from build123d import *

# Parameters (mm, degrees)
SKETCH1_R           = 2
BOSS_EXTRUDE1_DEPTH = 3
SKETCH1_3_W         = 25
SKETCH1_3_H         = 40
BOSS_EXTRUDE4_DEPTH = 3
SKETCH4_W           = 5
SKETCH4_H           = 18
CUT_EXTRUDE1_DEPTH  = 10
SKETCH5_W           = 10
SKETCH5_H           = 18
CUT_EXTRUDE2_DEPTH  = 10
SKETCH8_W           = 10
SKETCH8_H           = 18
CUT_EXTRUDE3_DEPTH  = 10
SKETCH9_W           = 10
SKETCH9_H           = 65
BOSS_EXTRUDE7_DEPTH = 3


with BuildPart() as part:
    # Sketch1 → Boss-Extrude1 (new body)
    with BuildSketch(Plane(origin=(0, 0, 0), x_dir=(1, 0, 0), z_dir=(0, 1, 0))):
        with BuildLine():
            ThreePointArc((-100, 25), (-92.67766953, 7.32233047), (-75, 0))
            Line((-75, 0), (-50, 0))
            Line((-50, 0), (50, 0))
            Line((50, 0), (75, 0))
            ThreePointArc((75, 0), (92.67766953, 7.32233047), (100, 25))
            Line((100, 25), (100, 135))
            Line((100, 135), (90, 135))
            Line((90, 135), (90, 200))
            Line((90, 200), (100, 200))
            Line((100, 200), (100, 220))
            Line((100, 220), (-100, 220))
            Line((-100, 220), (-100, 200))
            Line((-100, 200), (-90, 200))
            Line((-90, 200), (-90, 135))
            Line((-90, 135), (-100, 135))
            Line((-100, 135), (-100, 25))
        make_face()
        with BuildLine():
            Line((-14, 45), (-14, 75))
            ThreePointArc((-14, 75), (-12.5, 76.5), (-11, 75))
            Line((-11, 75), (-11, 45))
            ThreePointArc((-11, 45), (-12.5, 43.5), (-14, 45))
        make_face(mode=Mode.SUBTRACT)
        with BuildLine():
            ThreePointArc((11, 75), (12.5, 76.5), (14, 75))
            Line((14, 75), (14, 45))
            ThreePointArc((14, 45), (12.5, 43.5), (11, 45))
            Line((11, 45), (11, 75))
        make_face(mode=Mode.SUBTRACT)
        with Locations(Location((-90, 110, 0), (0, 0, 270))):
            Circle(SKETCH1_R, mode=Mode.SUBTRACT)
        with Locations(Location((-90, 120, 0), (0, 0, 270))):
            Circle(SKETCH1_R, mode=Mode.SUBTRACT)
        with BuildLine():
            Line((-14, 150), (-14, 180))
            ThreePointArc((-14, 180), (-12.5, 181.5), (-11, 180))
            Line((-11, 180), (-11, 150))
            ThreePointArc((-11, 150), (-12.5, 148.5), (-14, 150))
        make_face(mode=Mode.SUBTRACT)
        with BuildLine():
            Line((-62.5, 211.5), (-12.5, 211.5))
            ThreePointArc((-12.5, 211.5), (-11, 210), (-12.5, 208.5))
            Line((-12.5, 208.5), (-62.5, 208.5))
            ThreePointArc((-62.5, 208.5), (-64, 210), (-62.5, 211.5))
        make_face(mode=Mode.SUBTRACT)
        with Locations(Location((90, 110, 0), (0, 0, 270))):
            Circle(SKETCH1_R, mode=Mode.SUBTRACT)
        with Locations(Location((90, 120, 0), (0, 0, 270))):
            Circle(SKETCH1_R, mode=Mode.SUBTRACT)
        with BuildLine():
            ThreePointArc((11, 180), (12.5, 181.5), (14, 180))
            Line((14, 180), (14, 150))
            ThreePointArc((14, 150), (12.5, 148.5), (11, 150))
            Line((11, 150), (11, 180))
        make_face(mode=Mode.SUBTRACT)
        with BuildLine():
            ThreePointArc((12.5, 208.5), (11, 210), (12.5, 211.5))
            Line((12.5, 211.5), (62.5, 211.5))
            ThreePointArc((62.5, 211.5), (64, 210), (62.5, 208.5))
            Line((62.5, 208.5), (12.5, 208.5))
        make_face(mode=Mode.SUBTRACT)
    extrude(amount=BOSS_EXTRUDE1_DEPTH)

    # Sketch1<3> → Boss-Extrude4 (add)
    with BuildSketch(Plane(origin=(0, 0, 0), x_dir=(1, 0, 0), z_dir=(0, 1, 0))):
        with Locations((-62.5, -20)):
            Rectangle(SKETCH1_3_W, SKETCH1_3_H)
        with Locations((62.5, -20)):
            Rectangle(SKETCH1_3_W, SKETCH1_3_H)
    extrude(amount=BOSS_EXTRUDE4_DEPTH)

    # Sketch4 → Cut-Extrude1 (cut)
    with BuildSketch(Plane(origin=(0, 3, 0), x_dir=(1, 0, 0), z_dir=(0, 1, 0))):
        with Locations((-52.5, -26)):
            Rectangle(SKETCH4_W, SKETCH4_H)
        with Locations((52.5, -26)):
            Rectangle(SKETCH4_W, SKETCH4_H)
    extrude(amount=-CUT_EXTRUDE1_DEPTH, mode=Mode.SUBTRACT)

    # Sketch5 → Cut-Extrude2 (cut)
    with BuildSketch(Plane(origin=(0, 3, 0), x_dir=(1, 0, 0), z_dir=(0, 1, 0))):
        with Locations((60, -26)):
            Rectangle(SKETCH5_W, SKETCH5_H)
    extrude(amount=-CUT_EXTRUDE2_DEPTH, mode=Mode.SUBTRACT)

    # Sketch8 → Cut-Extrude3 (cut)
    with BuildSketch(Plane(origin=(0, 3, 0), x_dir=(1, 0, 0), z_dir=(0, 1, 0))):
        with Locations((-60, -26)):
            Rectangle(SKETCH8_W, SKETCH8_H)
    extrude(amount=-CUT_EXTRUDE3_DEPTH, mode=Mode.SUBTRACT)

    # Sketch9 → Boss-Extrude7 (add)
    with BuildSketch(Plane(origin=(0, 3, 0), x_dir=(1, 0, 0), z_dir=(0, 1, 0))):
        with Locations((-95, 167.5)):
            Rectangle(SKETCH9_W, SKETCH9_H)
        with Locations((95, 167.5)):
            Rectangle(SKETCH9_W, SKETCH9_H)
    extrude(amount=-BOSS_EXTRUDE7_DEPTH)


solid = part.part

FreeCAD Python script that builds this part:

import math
import FreeCAD as App
import Part
import Sketcher

doc = App.newDocument("Part")
body = doc.addObject("PartDesign::Body", "Body")

sketch1 = body.newObject("Sketcher::SketchObject", "Sketch")
sketch1.AttachmentSupport = (doc.getObject("XZ_Plane"), [""])
sketch1.MapMode = "FlatFace"
sketch1.addGeometry(Part.ArcOfCircle(Part.Circle(App.Vector(-75, -25, 0), App.Vector(0, 0, 1), 25), math.radians(90), math.radians(180)), False)
sketch1.addGeometry(Part.LineSegment(App.Vector(-75, 0, 0), App.Vector(75, 0, 0)), False)
sketch1.addGeometry(Part.ArcOfCircle(Part.Circle(App.Vector(75, -25, 0), App.Vector(0, 0, 1), 25), math.radians(0), math.radians(90)), False)
sketch1.addGeometry(Part.LineSegment(App.Vector(100, -25, 0), App.Vector(100, -135, 0)), False)
sketch1.addGeometry(Part.LineSegment(App.Vector(100, -135, 0), App.Vector(90, -135, 0)), False)
sketch1.addGeometry(Part.LineSegment(App.Vector(90, -135, 0), App.Vector(90, -200, 0)), False)
sketch1.addGeometry(Part.LineSegment(App.Vector(90, -200, 0), App.Vector(100, -200, 0)), False)
sketch1.addGeometry(Part.LineSegment(App.Vector(100, -200, 0), App.Vector(100, -220, 0)), False)
sketch1.addGeometry(Part.LineSegment(App.Vector(100, -220, 0), App.Vector(-100, -220, 0)), False)
sketch1.addGeometry(Part.LineSegment(App.Vector(-100, -220, 0), App.Vector(-100, -200, 0)), False)
sketch1.addGeometry(Part.LineSegment(App.Vector(-100, -200, 0), App.Vector(-90, -200, 0)), False)
sketch1.addGeometry(Part.LineSegment(App.Vector(-90, -200, 0), App.Vector(-90, -135, 0)), False)
sketch1.addGeometry(Part.LineSegment(App.Vector(-90, -135, 0), App.Vector(-100, -135, 0)), False)
sketch1.addGeometry(Part.LineSegment(App.Vector(-100, -135, 0), App.Vector(-100, -25, 0)), False)
sketch1.addGeometry(Part.ArcOfCircle(Part.Circle(App.Vector(-12.5, -45, 0), App.Vector(0, 0, 1), 1.5), math.radians(0), math.radians(180)), False)
sketch1.addGeometry(Part.LineSegment(App.Vector(-14, -45, 0), App.Vector(-14, -75, 0)), False)
sketch1.addGeometry(Part.ArcOfCircle(Part.Circle(App.Vector(-12.5, -75, 0), App.Vector(0, 0, 1), 1.5), math.radians(180), math.radians(360)), False)
sketch1.addGeometry(Part.LineSegment(App.Vector(-11, -75, 0), App.Vector(-11, -45, 0)), False)
sketch1.addGeometry(Part.Circle(App.Vector(-90, -110, 0), App.Vector(0, 0, 1), 2), False)
sketch1.addGeometry(Part.Circle(App.Vector(-90, -120, 0), App.Vector(0, 0, 1), 2), False)
sketch1.addGeometry(Part.LineSegment(App.Vector(11, -45, 0), App.Vector(11, -75, 0)), False)
sketch1.addGeometry(Part.ArcOfCircle(Part.Circle(App.Vector(12.5, -75, 0), App.Vector(0, 0, 1), 1.5), math.radians(180), math.radians(360)), False)
sketch1.addGeometry(Part.LineSegment(App.Vector(14, -75, 0), App.Vector(14, -45, 0)), False)
sketch1.addGeometry(Part.ArcOfCircle(Part.Circle(App.Vector(12.5, -45, 0), App.Vector(0, 0, 1), 1.5), math.radians(0), math.radians(180)), False)
sketch1.addGeometry(Part.Circle(App.Vector(90, -110, 0), App.Vector(0, 0, 1), 2), False)
sketch1.addGeometry(Part.Circle(App.Vector(90, -120, 0), App.Vector(0, 0, 1), 2), False)
sketch1.addGeometry(Part.ArcOfCircle(Part.Circle(App.Vector(-12.5, -150, 0), App.Vector(0, 0, 1), 1.5), math.radians(0), math.radians(180)), False)
sketch1.addGeometry(Part.LineSegment(App.Vector(-14, -150, 0), App.Vector(-14, -180, 0)), False)
sketch1.addGeometry(Part.ArcOfCircle(Part.Circle(App.Vector(-12.5, -180, 0), App.Vector(0, 0, 1), 1.5), math.radians(180), math.radians(360)), False)
sketch1.addGeometry(Part.LineSegment(App.Vector(-11, -180, 0), App.Vector(-11, -150, 0)), False)
sketch1.addGeometry(Part.ArcOfCircle(Part.Circle(App.Vector(-62.5, -210, 0), App.Vector(0, 0, 1), 1.5), math.radians(90), math.radians(270)), False)
sketch1.addGeometry(Part.LineSegment(App.Vector(-62.5, -211.5, 0), App.Vector(-12.5, -211.5, 0)), False)
sketch1.addGeometry(Part.ArcOfCircle(Part.Circle(App.Vector(-12.5, -210, 0), App.Vector(0, 0, 1), 1.5), math.radians(-90), math.radians(90)), False)
sketch1.addGeometry(Part.LineSegment(App.Vector(-12.5, -208.5, 0), App.Vector(-62.5, -208.5, 0)), False)
sketch1.addGeometry(Part.LineSegment(App.Vector(11, -150, 0), App.Vector(11, -180, 0)), False)
sketch1.addGeometry(Part.ArcOfCircle(Part.Circle(App.Vector(12.5, -180, 0), App.Vector(0, 0, 1), 1.5), math.radians(180), math.radians(360)), False)
sketch1.addGeometry(Part.LineSegment(App.Vector(14, -180, 0), App.Vector(14, -150, 0)), False)
sketch1.addGeometry(Part.ArcOfCircle(Part.Circle(App.Vector(12.5, -150, 0), App.Vector(0, 0, 1), 1.5), math.radians(0), math.radians(180)), False)
sketch1.addGeometry(Part.LineSegment(App.Vector(62.5, -208.5, 0), App.Vector(12.5, -208.5, 0)), False)
sketch1.addGeometry(Part.ArcOfCircle(Part.Circle(App.Vector(12.5, -210, 0), App.Vector(0, 0, 1), 1.5), math.radians(90), math.radians(270)), False)
sketch1.addGeometry(Part.LineSegment(App.Vector(12.5, -211.5, 0), App.Vector(62.5, -211.5, 0)), False)
sketch1.addGeometry(Part.ArcOfCircle(Part.Circle(App.Vector(62.5, -210, 0), App.Vector(0, 0, 1), 1.5), math.radians(-90), math.radians(90)), False)
sketch1.addConstraint(Sketcher.Constraint("Tangent", 0, 1, 1, 1))
sketch1.addConstraint(Sketcher.Constraint("Tangent", 1, 2, 2, 2))
sketch1.addConstraint(Sketcher.Constraint("Tangent", 2, 1, 3, 1))
sketch1.addConstraint(Sketcher.Constraint("Coincident", 3, 2, 4, 1))
sketch1.addConstraint(Sketcher.Constraint("Coincident", 4, 2, 5, 1))
sketch1.addConstraint(Sketcher.Constraint("Coincident", 5, 2, 6, 1))
sketch1.addConstraint(Sketcher.Constraint("Coincident", 6, 2, 7, 1))
sketch1.addConstraint(Sketcher.Constraint("Coincident", 7, 2, 8, 1))
sketch1.addConstraint(Sketcher.Constraint("Coincident", 8, 2, 9, 1))
sketch1.addConstraint(Sketcher.Constraint("Coincident", 9, 2, 10, 1))
sketch1.addConstraint(Sketcher.Constraint("Coincident", 10, 2, 11, 1))
sketch1.addConstraint(Sketcher.Constraint("Coincident", 11, 2, 12, 1))
sketch1.addConstraint(Sketcher.Constraint("Coincident", 12, 2, 13, 1))
sketch1.addConstraint(Sketcher.Constraint("Tangent", 13, 2, 0, 2))
sketch1.addConstraint(Sketcher.Constraint("Tangent", 14, 2, 15, 1))
sketch1.addConstraint(Sketcher.Constraint("Tangent", 15, 2, 16, 1))
sketch1.addConstraint(Sketcher.Constraint("Tangent", 16, 2, 17, 1))
sketch1.addConstraint(Sketcher.Constraint("Tangent", 17, 2, 14, 1))
sketch1.addConstraint(Sketcher.Constraint("Tangent", 20, 2, 21, 1))
sketch1.addConstraint(Sketcher.Constraint("Tangent", 21, 2, 22, 1))
sketch1.addConstraint(Sketcher.Constraint("Tangent", 22, 2, 23, 1))
sketch1.addConstraint(Sketcher.Constraint("Tangent", 23, 2, 20, 1))
sketch1.addConstraint(Sketcher.Constraint("Tangent", 26, 2, 27, 1))
sketch1.addConstraint(Sketcher.Constraint("Tangent", 27, 2, 28, 1))
sketch1.addConstraint(Sketcher.Constraint("Tangent", 28, 2, 29, 1))
sketch1.addConstraint(Sketcher.Constraint("Tangent", 29, 2, 26, 1))
sketch1.addConstraint(Sketcher.Constraint("Tangent", 30, 2, 31, 1))
sketch1.addConstraint(Sketcher.Constraint("Tangent", 31, 2, 32, 1))
sketch1.addConstraint(Sketcher.Constraint("Tangent", 32, 2, 33, 1))
sketch1.addConstraint(Sketcher.Constraint("Tangent", 33, 2, 30, 1))
sketch1.addConstraint(Sketcher.Constraint("Tangent", 34, 2, 35, 1))
sketch1.addConstraint(Sketcher.Constraint("Tangent", 35, 2, 36, 1))
sketch1.addConstraint(Sketcher.Constraint("Tangent", 36, 2, 37, 1))
sketch1.addConstraint(Sketcher.Constraint("Tangent", 37, 2, 34, 1))
sketch1.addConstraint(Sketcher.Constraint("Tangent", 38, 2, 39, 1))
sketch1.addConstraint(Sketcher.Constraint("Tangent", 39, 2, 40, 1))
sketch1.addConstraint(Sketcher.Constraint("Tangent", 40, 2, 41, 1))
sketch1.addConstraint(Sketcher.Constraint("Tangent", 41, 2, 38, 1))
sketch1.addConstraint(Sketcher.Constraint("Horizontal", 1))
sketch1.addConstraint(Sketcher.Constraint("Vertical", 3))
sketch1.addConstraint(Sketcher.Constraint("Horizontal", 4))
sketch1.addConstraint(Sketcher.Constraint("Vertical", 5))
sketch1.addConstraint(Sketcher.Constraint("Horizontal", 6))
sketch1.addConstraint(Sketcher.Constraint("Vertical", 7))
sketch1.addConstraint(Sketcher.Constraint("Horizontal", 8))
sketch1.addConstraint(Sketcher.Constraint("Vertical", 9))
sketch1.addConstraint(Sketcher.Constraint("Horizontal", 10))
sketch1.addConstraint(Sketcher.Constraint("Vertical", 11))
sketch1.addConstraint(Sketcher.Constraint("Horizontal", 12))
sketch1.addConstraint(Sketcher.Constraint("Vertical", 13))
sketch1.addConstraint(Sketcher.Constraint("Vertical", 15))
sketch1.addConstraint(Sketcher.Constraint("Vertical", 17))
sketch1.addConstraint(Sketcher.Constraint("Vertical", 20))
sketch1.addConstraint(Sketcher.Constraint("Vertical", 22))
sketch1.addConstraint(Sketcher.Constraint("Vertical", 27))
sketch1.addConstraint(Sketcher.Constraint("Vertical", 29))
sketch1.addConstraint(Sketcher.Constraint("Horizontal", 31))
sketch1.addConstraint(Sketcher.Constraint("Horizontal", 33))
sketch1.addConstraint(Sketcher.Constraint("Vertical", 34))
sketch1.addConstraint(Sketcher.Constraint("Vertical", 36))
sketch1.addConstraint(Sketcher.Constraint("Horizontal", 38))
sketch1.addConstraint(Sketcher.Constraint("Horizontal", 40))
sketch1.addConstraint(Sketcher.Constraint("Equal", 0, 2))
sketch1.addConstraint(Sketcher.Constraint("Equal", 18, 19))
sketch1.addConstraint(Sketcher.Constraint("Equal", 16, 21))
sketch1.addConstraint(Sketcher.Constraint("Equal", 19, 24))
sketch1.addConstraint(Sketcher.Constraint("Equal", 24, 25))
sketch1.addConstraint(Sketcher.Constraint("Equal", 23, 26))
sketch1.addConstraint(Sketcher.Constraint("Equal", 28, 30))
sketch1.addConstraint(Sketcher.Constraint("Equal", 32, 35))
sketch1.addConstraint(Sketcher.Constraint("Equal", 37, 39))
sketch1.addConstraint(Sketcher.Constraint("Symmetric", 0, 1, 1, 2, -1, 1))
sketch1.addConstraint(Sketcher.Constraint("Symmetric", 16, 3, 21, 3, -2))
sketch1.addConstraint(Sketcher.Constraint("Symmetric", 18, 3, 24, 3, -2))
sketch1.addConstraint(Sketcher.Constraint("Symmetric", 19, 3, 25, 3, -2))
sketch1.addConstraint(Sketcher.Constraint("Symmetric", 28, 3, 35, 3, -2))
sketch1.addConstraint(Sketcher.Constraint("Symmetric", 32, 3, 39, 3, -2))
sketch1.addConstraint(Sketcher.Constraint("Symmetric", 6, 2, 9, 2, -2))
sketch1.addConstraint(Sketcher.Constraint("Symmetric", 4, 2, 11, 2, -2))
sketch1.addConstraint(Sketcher.Constraint("Horizontal", 14, 3, 23, 3))
sketch1.addConstraint(Sketcher.Constraint("Horizontal", 26, 3, 37, 3))
sketch1.addConstraint(Sketcher.Constraint("Vertical", 18, 3, 19, 3))
sketch1.addConstraint(Sketcher.Constraint("Vertical", 16, 3, 26, 3))
sketch1.addConstraint(Sketcher.Constraint("Vertical", 28, 3, 32, 3))
sketch1.addConstraint(Sketcher.Constraint("Vertical", 25, 3, 4, 2))
sketch1.addConstraint(Sketcher.Constraint("Vertical", 3, 2, 6, 2))
sketch1.addConstraint(Sketcher.Constraint("Equal", 33, 38))
sketch1.addConstraint(Sketcher.Constraint("Equal", 22, 27))
sketch1.addConstraint(Sketcher.Constraint("Diameter", 18, 4.0))
sketch1.addConstraint(Sketcher.Constraint("Radius", 0, 25.0))
sketch1.addConstraint(Sketcher.Constraint("Radius", 14, 1.5))
sketch1.addConstraint(Sketcher.Constraint("DistanceX", 1, 1, 1, 2, 150.0))
sketch1.addConstraint(Sketcher.Constraint("DistanceX", 4, 2, 4, 1, 10.0))
sketch1.addConstraint(Sketcher.Constraint("DistanceX", 31, 1, 31, 2, 50.0))
sketch1.addConstraint(Sketcher.Constraint("DistanceY", 3, 2, 3, 1, 110.0))
sketch1.addConstraint(Sketcher.Constraint("DistanceY", 5, 2, 5, 1, 65.0))
sketch1.addConstraint(Sketcher.Constraint("DistanceY", 7, 2, 7, 1, 20.0))
sketch1.addConstraint(Sketcher.Constraint("DistanceY", 15, 2, 15, 1, 30.0))
sketch1.addConstraint(Sketcher.Constraint("DistanceY", 14, 3, -1, 1, 45.0))
sketch1.addConstraint(Sketcher.Constraint("DistanceY", 18, 3, -1, 1, 110.0))
sketch1.addConstraint(Sketcher.Constraint("DistanceY", 19, 3, -1, 1, 120.0))
sketch1.addConstraint(Sketcher.Constraint("DistanceY", 26, 3, -1, 1, 150.0))
sketch1.addConstraint(Sketcher.Constraint("DistanceY", 30, 3, -1, 1, 210.0))
sketch1.addConstraint(Sketcher.Constraint("DistanceX", 14, 2, -1, 1, 14.0))
pad1 = body.newObject("PartDesign::Pad", "Pad")
pad1.Profile = sketch1
pad1.Length = 3
pad1.Reversed = True

sketch2 = body.newObject("Sketcher::SketchObject", "Sketch001")
sketch2.AttachmentSupport = (doc.getObject("XZ_Plane"), [""])
sketch2.MapMode = "FlatFace"
sketch2.addGeometry(Part.LineSegment(App.Vector(-75, 0, 0), App.Vector(-75, 40, 0)), False)
sketch2.addGeometry(Part.LineSegment(App.Vector(-75, 40, 0), App.Vector(-50, 40, 0)), False)
sketch2.addGeometry(Part.LineSegment(App.Vector(-50, 40, 0), App.Vector(-50, 0, 0)), False)
sketch2.addGeometry(Part.LineSegment(App.Vector(-50, 0, 0), App.Vector(-75, 0, 0)), False)
sketch2.addGeometry(Part.LineSegment(App.Vector(50, 0, 0), App.Vector(50, 40, 0)), False)
sketch2.addGeometry(Part.LineSegment(App.Vector(50, 40, 0), App.Vector(75, 40, 0)), False)
sketch2.addGeometry(Part.LineSegment(App.Vector(75, 40, 0), App.Vector(75, 0, 0)), False)
sketch2.addGeometry(Part.LineSegment(App.Vector(75, 0, 0), App.Vector(50, 0, 0)), False)
sketch2.addConstraint(Sketcher.Constraint("Coincident", 0, 2, 1, 1))
sketch2.addConstraint(Sketcher.Constraint("Coincident", 1, 2, 2, 1))
sketch2.addConstraint(Sketcher.Constraint("Coincident", 2, 2, 3, 1))
sketch2.addConstraint(Sketcher.Constraint("Coincident", 3, 2, 0, 1))
sketch2.addConstraint(Sketcher.Constraint("Coincident", 4, 2, 5, 1))
sketch2.addConstraint(Sketcher.Constraint("Coincident", 5, 2, 6, 1))
sketch2.addConstraint(Sketcher.Constraint("Coincident", 6, 2, 7, 1))
sketch2.addConstraint(Sketcher.Constraint("Coincident", 7, 2, 4, 1))
sketch2.addConstraint(Sketcher.Constraint("Vertical", 0))
sketch2.addConstraint(Sketcher.Constraint("Horizontal", 1))
sketch2.addConstraint(Sketcher.Constraint("Vertical", 2))
sketch2.addConstraint(Sketcher.Constraint("Horizontal", 3))
sketch2.addConstraint(Sketcher.Constraint("Vertical", 4))
sketch2.addConstraint(Sketcher.Constraint("Horizontal", 5))
sketch2.addConstraint(Sketcher.Constraint("Vertical", 6))
sketch2.addConstraint(Sketcher.Constraint("Horizontal", 7))
sketch2.addConstraint(Sketcher.Constraint("Symmetric", 3, 2, 6, 2, -1, 1))
sketch2.addConstraint(Sketcher.Constraint("Symmetric", 1, 2, 4, 2, -2))
sketch2.addConstraint(Sketcher.Constraint("PointOnObject", 2, 2, -1))
sketch2.addConstraint(Sketcher.Constraint("DistanceX", 1, 1, 1, 2, 25.0))
sketch2.addConstraint(Sketcher.Constraint("DistanceY", 0, 1, 0, 2, 40.0))
sketch2.addConstraint(Sketcher.Constraint("DistanceX", 0, 2, -1, 1, 75.0))
pad2 = body.newObject("PartDesign::Pad", "Pad001")
pad2.Profile = sketch2
pad2.Length = 3
pad2.Reversed = True

sketch3 = body.newObject("Sketcher::SketchObject", "Sketch002")
sketch3.AttachmentSupport = (doc.getObject("XZ_Plane"), [""])
sketch3.MapMode = "FlatFace"
sketch3.AttachmentOffset = App.Placement(App.Vector(0, 0, -3), App.Rotation())
sketch3.addGeometry(Part.LineSegment(App.Vector(-55, 17, 0), App.Vector(-55, 35, 0)), False)
sketch3.addGeometry(Part.LineSegment(App.Vector(-55, 35, 0), App.Vector(-50, 35, 0)), False)
sketch3.addGeometry(Part.LineSegment(App.Vector(-50, 35, 0), App.Vector(-50, 17, 0)), False)
sketch3.addGeometry(Part.LineSegment(App.Vector(-50, 17, 0), App.Vector(-55, 17, 0)), False)
sketch3.addGeometry(Part.LineSegment(App.Vector(50, 17, 0), App.Vector(50, 35, 0)), False)
sketch3.addGeometry(Part.LineSegment(App.Vector(50, 35, 0), App.Vector(55, 35, 0)), False)
sketch3.addGeometry(Part.LineSegment(App.Vector(55, 35, 0), App.Vector(55, 17, 0)), False)
sketch3.addGeometry(Part.LineSegment(App.Vector(55, 17, 0), App.Vector(50, 17, 0)), False)
sketch3.addConstraint(Sketcher.Constraint("Coincident", 0, 2, 1, 1))
sketch3.addConstraint(Sketcher.Constraint("Coincident", 1, 2, 2, 1))
sketch3.addConstraint(Sketcher.Constraint("Coincident", 2, 2, 3, 1))
sketch3.addConstraint(Sketcher.Constraint("Coincident", 3, 2, 0, 1))
sketch3.addConstraint(Sketcher.Constraint("Coincident", 4, 2, 5, 1))
sketch3.addConstraint(Sketcher.Constraint("Coincident", 5, 2, 6, 1))
sketch3.addConstraint(Sketcher.Constraint("Coincident", 6, 2, 7, 1))
sketch3.addConstraint(Sketcher.Constraint("Coincident", 7, 2, 4, 1))
sketch3.addConstraint(Sketcher.Constraint("Vertical", 0))
sketch3.addConstraint(Sketcher.Constraint("Horizontal", 1))
sketch3.addConstraint(Sketcher.Constraint("Vertical", 2))
sketch3.addConstraint(Sketcher.Constraint("Horizontal", 3))
sketch3.addConstraint(Sketcher.Constraint("Vertical", 4))
sketch3.addConstraint(Sketcher.Constraint("Horizontal", 5))
sketch3.addConstraint(Sketcher.Constraint("Vertical", 6))
sketch3.addConstraint(Sketcher.Constraint("Horizontal", 7))
sketch3.addConstraint(Sketcher.Constraint("Symmetric", 1, 2, 4, 2, -2))
sketch3.addConstraint(Sketcher.Constraint("Symmetric", 3, 2, 6, 2, -2))
sketch3.addConstraint(Sketcher.Constraint("DistanceX", 1, 1, 1, 2, 5.0))
sketch3.addConstraint(Sketcher.Constraint("DistanceY", 0, 1, 0, 2, 18.0))
sketch3.addConstraint(Sketcher.Constraint("DistanceX", 0, 2, -1, 1, 55.0))
sketch3.addConstraint(Sketcher.Constraint("DistanceY", -1, 1, 0, 2, 35.0))
pocket1 = body.newObject("PartDesign::Pocket", "Pocket")
pocket1.Profile = sketch3
pocket1.Length = 10
pocket1.Reversed = True

sketch4 = body.newObject("Sketcher::SketchObject", "Sketch003")
sketch4.AttachmentSupport = (doc.getObject("XZ_Plane"), [""])
sketch4.MapMode = "FlatFace"
sketch4.AttachmentOffset = App.Placement(App.Vector(0, 0, -3), App.Rotation())
sketch4.addGeometry(Part.LineSegment(App.Vector(55, 17, 0), App.Vector(55, 35, 0)), False)
sketch4.addGeometry(Part.LineSegment(App.Vector(55, 35, 0), App.Vector(65, 35, 0)), False)
sketch4.addGeometry(Part.LineSegment(App.Vector(65, 35, 0), App.Vector(65, 17, 0)), False)
sketch4.addGeometry(Part.LineSegment(App.Vector(65, 17, 0), App.Vector(55, 17, 0)), False)
sketch4.addConstraint(Sketcher.Constraint("Coincident", 0, 2, 1, 1))
sketch4.addConstraint(Sketcher.Constraint("Coincident", 1, 2, 2, 1))
sketch4.addConstraint(Sketcher.Constraint("Coincident", 2, 2, 3, 1))
sketch4.addConstraint(Sketcher.Constraint("Coincident", 3, 2, 0, 1))
sketch4.addConstraint(Sketcher.Constraint("Vertical", 0))
sketch4.addConstraint(Sketcher.Constraint("Horizontal", 1))
sketch4.addConstraint(Sketcher.Constraint("Vertical", 2))
sketch4.addConstraint(Sketcher.Constraint("Horizontal", 3))
sketch4.addConstraint(Sketcher.Constraint("DistanceX", 1, 1, 1, 2, 10.0))
sketch4.addConstraint(Sketcher.Constraint("DistanceY", 0, 1, 0, 2, 18.0))
sketch4.addConstraint(Sketcher.Constraint("DistanceX", -1, 1, 0, 2, 55.0))
sketch4.addConstraint(Sketcher.Constraint("DistanceY", -1, 1, 0, 2, 35.0))
pocket2 = body.newObject("PartDesign::Pocket", "Pocket001")
pocket2.Profile = sketch4
pocket2.Length = 10
pocket2.Reversed = True

sketch5 = body.newObject("Sketcher::SketchObject", "Sketch004")
sketch5.AttachmentSupport = (doc.getObject("XZ_Plane"), [""])
sketch5.MapMode = "FlatFace"
sketch5.AttachmentOffset = App.Placement(App.Vector(0, 0, -3), App.Rotation())
sketch5.addGeometry(Part.LineSegment(App.Vector(-65, 17, 0), App.Vector(-65, 35, 0)), False)
sketch5.addGeometry(Part.LineSegment(App.Vector(-65, 35, 0), App.Vector(-55, 35, 0)), False)
sketch5.addGeometry(Part.LineSegment(App.Vector(-55, 35, 0), App.Vector(-55, 17, 0)), False)
sketch5.addGeometry(Part.LineSegment(App.Vector(-55, 17, 0), App.Vector(-65, 17, 0)), False)
sketch5.addConstraint(Sketcher.Constraint("Coincident", 0, 2, 1, 1))
sketch5.addConstraint(Sketcher.Constraint("Coincident", 1, 2, 2, 1))
sketch5.addConstraint(Sketcher.Constraint("Coincident", 2, 2, 3, 1))
sketch5.addConstraint(Sketcher.Constraint("Coincident", 3, 2, 0, 1))
sketch5.addConstraint(Sketcher.Constraint("Vertical", 0))
sketch5.addConstraint(Sketcher.Constraint("Horizontal", 1))
sketch5.addConstraint(Sketcher.Constraint("Vertical", 2))
sketch5.addConstraint(Sketcher.Constraint("Horizontal", 3))
sketch5.addConstraint(Sketcher.Constraint("DistanceX", 1, 1, 1, 2, 10.0))
sketch5.addConstraint(Sketcher.Constraint("DistanceY", 0, 1, 0, 2, 18.0))
sketch5.addConstraint(Sketcher.Constraint("DistanceX", 0, 2, -1, 1, 65.0))
sketch5.addConstraint(Sketcher.Constraint("DistanceY", -1, 1, 0, 2, 35.0))
pocket3 = body.newObject("PartDesign::Pocket", "Pocket002")
pocket3.Profile = sketch5
pocket3.Length = 10
pocket3.Reversed = True

sketch6 = body.newObject("Sketcher::SketchObject", "Sketch005")
sketch6.AttachmentSupport = (doc.getObject("XZ_Plane"), [""])
sketch6.MapMode = "FlatFace"
sketch6.AttachmentOffset = App.Placement(App.Vector(0, 0, -3), App.Rotation())
sketch6.addGeometry(Part.LineSegment(App.Vector(-100, -200, 0), App.Vector(-100, -135, 0)), False)
sketch6.addGeometry(Part.LineSegment(App.Vector(-100, -135, 0), App.Vector(-90, -135, 0)), False)
sketch6.addGeometry(Part.LineSegment(App.Vector(-90, -135, 0), App.Vector(-90, -200, 0)), False)
sketch6.addGeometry(Part.LineSegment(App.Vector(-90, -200, 0), App.Vector(-100, -200, 0)), False)
sketch6.addGeometry(Part.LineSegment(App.Vector(90, -200, 0), App.Vector(90, -135, 0)), False)
sketch6.addGeometry(Part.LineSegment(App.Vector(90, -135, 0), App.Vector(100, -135, 0)), False)
sketch6.addGeometry(Part.LineSegment(App.Vector(100, -135, 0), App.Vector(100, -200, 0)), False)
sketch6.addGeometry(Part.LineSegment(App.Vector(100, -200, 0), App.Vector(90, -200, 0)), False)
sketch6.addConstraint(Sketcher.Constraint("Coincident", 0, 2, 1, 1))
sketch6.addConstraint(Sketcher.Constraint("Coincident", 1, 2, 2, 1))
sketch6.addConstraint(Sketcher.Constraint("Coincident", 2, 2, 3, 1))
sketch6.addConstraint(Sketcher.Constraint("Coincident", 3, 2, 0, 1))
sketch6.addConstraint(Sketcher.Constraint("Coincident", 4, 2, 5, 1))
sketch6.addConstraint(Sketcher.Constraint("Coincident", 5, 2, 6, 1))
sketch6.addConstraint(Sketcher.Constraint("Coincident", 6, 2, 7, 1))
sketch6.addConstraint(Sketcher.Constraint("Coincident", 7, 2, 4, 1))
sketch6.addConstraint(Sketcher.Constraint("Vertical", 0))
sketch6.addConstraint(Sketcher.Constraint("Horizontal", 1))
sketch6.addConstraint(Sketcher.Constraint("Vertical", 2))
sketch6.addConstraint(Sketcher.Constraint("Horizontal", 3))
sketch6.addConstraint(Sketcher.Constraint("Vertical", 4))
sketch6.addConstraint(Sketcher.Constraint("Horizontal", 5))
sketch6.addConstraint(Sketcher.Constraint("Vertical", 6))
sketch6.addConstraint(Sketcher.Constraint("Horizontal", 7))
sketch6.addConstraint(Sketcher.Constraint("Symmetric", 1, 2, 4, 2, -2))
sketch6.addConstraint(Sketcher.Constraint("Symmetric", 3, 2, 6, 2, -2))
sketch6.addConstraint(Sketcher.Constraint("DistanceX", 1, 1, 1, 2, 10.0))
sketch6.addConstraint(Sketcher.Constraint("DistanceY", 0, 1, 0, 2, 65.0))
sketch6.addConstraint(Sketcher.Constraint("DistanceX", 0, 2, -1, 1, 100.0))
sketch6.addConstraint(Sketcher.Constraint("DistanceY", 0, 2, -1, 1, 135.0))
pad3 = body.newObject("PartDesign::Pad", "Pad002")
pad3.Profile = sketch6
pad3.Length = 3

doc.recompute()
